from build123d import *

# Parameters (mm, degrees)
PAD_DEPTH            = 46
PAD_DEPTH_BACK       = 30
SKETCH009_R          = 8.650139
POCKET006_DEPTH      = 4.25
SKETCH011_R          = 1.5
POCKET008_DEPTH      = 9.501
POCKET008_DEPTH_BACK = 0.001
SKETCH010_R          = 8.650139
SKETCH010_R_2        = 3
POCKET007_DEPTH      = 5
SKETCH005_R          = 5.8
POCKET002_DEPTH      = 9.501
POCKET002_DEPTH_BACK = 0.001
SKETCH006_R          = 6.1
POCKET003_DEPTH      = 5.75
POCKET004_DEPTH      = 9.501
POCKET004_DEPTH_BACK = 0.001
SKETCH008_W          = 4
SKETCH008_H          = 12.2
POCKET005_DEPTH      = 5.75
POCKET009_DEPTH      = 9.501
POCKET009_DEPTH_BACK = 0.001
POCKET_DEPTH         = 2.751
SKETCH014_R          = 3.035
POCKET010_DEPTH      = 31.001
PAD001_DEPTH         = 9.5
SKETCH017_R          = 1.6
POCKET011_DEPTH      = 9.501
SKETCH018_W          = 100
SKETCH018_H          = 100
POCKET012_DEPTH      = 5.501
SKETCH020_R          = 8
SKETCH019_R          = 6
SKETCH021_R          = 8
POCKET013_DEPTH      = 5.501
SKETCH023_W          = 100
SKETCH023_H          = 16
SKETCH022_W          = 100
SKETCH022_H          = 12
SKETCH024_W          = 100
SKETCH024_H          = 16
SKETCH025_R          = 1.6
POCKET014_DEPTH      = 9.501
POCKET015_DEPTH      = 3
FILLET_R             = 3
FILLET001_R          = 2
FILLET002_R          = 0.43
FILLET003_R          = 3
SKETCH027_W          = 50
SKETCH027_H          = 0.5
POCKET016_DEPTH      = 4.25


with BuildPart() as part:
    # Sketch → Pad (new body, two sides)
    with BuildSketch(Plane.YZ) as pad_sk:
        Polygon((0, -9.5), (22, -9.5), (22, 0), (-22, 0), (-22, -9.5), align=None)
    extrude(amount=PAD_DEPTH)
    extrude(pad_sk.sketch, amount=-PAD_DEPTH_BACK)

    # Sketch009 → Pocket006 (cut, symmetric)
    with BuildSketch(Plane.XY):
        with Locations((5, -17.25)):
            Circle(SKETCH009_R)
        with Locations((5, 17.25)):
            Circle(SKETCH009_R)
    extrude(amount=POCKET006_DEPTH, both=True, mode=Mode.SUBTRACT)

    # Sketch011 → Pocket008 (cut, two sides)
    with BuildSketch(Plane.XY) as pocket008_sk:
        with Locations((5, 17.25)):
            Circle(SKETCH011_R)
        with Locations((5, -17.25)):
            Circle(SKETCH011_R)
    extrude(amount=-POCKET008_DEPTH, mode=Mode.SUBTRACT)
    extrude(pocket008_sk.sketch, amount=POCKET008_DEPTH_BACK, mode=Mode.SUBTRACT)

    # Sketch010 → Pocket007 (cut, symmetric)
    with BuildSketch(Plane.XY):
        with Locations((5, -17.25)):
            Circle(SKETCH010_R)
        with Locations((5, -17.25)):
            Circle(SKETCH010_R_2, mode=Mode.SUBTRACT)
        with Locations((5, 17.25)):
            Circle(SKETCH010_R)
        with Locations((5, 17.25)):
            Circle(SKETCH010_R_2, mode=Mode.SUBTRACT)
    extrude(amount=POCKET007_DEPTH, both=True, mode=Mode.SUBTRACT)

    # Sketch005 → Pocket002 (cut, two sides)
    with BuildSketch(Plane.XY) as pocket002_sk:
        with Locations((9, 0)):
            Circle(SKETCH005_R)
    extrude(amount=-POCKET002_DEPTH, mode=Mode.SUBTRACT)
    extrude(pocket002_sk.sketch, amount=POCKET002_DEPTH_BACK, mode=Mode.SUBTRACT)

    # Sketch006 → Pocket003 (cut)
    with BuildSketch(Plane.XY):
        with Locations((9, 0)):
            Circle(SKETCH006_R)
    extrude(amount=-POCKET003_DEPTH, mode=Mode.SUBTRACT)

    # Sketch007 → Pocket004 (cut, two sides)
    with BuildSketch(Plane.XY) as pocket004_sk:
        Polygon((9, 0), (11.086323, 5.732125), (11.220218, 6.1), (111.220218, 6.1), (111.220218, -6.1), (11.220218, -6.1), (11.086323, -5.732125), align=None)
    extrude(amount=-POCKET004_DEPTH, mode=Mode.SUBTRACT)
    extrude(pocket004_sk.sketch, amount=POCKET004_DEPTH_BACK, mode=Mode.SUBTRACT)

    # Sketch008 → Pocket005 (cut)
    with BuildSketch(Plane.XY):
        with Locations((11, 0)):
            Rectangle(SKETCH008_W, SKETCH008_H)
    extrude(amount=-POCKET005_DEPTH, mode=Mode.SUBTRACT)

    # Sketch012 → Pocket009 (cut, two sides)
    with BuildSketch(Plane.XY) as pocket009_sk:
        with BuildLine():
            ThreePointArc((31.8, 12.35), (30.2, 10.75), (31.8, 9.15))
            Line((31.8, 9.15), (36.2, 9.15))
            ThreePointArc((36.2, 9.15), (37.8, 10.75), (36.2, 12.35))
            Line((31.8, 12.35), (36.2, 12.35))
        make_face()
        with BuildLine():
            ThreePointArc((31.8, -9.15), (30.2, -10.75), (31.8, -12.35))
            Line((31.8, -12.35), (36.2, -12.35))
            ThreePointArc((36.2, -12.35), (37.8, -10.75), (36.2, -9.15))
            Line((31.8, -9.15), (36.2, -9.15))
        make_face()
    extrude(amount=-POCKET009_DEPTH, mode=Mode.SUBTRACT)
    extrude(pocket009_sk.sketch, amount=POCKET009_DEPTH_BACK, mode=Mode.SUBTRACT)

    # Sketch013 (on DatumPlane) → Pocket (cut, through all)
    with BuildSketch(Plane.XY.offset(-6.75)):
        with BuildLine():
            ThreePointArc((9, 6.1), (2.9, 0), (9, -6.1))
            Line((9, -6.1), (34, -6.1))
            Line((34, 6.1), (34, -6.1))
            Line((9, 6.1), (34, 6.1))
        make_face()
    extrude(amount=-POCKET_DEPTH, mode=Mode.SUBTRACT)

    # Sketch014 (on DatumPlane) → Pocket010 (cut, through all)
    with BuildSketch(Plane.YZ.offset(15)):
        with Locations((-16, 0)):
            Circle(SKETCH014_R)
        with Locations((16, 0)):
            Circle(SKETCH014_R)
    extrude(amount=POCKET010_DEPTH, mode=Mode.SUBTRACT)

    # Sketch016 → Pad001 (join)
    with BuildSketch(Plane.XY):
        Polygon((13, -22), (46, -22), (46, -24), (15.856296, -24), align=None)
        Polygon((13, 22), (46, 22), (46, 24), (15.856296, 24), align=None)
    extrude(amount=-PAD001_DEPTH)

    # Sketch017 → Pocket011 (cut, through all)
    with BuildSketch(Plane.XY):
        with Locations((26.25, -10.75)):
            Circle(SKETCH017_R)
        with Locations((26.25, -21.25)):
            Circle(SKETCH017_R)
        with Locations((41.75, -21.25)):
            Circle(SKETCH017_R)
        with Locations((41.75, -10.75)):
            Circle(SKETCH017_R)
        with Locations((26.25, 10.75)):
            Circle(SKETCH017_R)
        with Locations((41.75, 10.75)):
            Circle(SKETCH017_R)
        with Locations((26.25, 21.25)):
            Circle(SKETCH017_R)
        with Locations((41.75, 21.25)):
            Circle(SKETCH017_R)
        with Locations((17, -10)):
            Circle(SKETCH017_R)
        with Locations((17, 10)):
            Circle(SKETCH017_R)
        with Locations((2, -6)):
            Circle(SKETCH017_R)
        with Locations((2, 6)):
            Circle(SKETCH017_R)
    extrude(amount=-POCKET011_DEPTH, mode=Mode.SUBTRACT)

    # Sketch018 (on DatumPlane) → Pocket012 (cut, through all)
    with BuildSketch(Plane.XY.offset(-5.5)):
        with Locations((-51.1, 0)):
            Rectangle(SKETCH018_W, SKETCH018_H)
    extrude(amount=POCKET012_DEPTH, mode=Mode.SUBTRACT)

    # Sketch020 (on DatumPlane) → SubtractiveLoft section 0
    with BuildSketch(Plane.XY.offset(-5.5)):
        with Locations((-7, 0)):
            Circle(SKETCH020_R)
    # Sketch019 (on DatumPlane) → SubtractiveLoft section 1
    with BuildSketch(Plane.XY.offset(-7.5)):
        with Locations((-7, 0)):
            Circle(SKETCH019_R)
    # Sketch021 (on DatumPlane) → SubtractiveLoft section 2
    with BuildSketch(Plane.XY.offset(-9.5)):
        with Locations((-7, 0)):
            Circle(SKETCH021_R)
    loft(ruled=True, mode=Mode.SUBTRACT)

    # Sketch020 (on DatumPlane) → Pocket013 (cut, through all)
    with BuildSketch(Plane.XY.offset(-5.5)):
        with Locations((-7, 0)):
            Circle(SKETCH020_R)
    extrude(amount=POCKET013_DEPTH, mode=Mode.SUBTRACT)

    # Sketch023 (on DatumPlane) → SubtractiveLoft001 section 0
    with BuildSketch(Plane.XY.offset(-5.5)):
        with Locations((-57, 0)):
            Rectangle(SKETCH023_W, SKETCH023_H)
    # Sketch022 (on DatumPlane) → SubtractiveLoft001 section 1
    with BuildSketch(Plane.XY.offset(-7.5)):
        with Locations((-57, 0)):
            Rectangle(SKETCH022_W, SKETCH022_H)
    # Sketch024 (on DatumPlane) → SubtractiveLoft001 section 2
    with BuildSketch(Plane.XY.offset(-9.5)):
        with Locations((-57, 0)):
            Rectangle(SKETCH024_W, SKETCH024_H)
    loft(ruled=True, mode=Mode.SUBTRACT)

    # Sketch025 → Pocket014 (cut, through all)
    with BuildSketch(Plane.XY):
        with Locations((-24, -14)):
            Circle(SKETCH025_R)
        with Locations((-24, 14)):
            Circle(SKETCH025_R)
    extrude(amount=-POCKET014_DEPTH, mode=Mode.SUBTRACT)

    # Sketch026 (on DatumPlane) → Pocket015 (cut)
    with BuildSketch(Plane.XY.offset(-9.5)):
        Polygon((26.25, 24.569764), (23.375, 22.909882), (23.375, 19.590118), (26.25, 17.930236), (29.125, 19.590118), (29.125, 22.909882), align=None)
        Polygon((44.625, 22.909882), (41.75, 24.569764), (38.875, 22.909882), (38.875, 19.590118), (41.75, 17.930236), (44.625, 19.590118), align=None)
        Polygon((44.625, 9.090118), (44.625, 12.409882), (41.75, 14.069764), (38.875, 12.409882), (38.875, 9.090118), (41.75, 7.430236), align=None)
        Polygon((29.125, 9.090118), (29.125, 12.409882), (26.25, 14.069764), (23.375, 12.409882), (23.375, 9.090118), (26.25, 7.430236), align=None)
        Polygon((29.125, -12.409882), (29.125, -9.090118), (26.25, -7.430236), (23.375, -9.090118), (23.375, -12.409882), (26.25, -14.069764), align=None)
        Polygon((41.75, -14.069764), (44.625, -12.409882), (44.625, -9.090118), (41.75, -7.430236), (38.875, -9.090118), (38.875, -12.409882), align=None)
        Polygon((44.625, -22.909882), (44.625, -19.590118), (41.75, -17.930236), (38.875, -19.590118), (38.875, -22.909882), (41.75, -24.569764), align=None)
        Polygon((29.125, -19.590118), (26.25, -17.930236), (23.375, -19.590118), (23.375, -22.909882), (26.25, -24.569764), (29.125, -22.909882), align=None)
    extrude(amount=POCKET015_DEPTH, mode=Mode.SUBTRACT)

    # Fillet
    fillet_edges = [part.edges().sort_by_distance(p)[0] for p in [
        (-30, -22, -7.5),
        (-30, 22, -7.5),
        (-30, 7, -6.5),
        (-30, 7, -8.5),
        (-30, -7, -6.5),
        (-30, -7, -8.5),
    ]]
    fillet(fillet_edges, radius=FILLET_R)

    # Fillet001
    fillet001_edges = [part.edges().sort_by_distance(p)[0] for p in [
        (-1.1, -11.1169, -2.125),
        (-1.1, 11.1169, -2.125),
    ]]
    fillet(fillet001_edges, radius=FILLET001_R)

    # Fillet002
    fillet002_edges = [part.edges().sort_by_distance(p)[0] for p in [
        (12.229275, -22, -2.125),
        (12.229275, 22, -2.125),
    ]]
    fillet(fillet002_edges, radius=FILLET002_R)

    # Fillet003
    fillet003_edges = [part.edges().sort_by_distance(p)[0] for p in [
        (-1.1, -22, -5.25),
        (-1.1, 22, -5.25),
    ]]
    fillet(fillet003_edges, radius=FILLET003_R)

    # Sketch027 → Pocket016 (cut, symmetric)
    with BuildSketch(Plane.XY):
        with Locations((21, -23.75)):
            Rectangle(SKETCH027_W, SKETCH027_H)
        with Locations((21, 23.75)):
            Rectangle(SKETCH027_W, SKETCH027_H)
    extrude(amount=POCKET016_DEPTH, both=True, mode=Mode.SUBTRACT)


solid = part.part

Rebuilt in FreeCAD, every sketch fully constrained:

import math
import FreeCAD as App
import Part
import Sketcher
Q = App.Units.Quantity


def edges_at(feature, points):
    """Names of the edges that pass closest to the given points."""
    edges = feature.Shape.Edges
    near = lambda p: min(range(len(edges)), key=lambda i: edges[i].distToShape(Part.Vertex(*p))[0])
    return sorted({f"Edge{near(p) + 1}" for p in points})


def add_polygon(sketch, points):
    """Adds a closed chain of lines whose ends are joined by coincident constraints."""
    first, n = sketch.GeometryCount, len(points)
    for a, b in zip(points, points[1:] + points[:1]):
        sketch.addGeometry(Part.LineSegment(App.Vector(*a, 0), App.Vector(*b, 0)), False)
    for i in range(n):
        sketch.addConstraint(Sketcher.Constraint("Coincident", first + i, 2, first + (i + 1) % n, 1))

doc = App.newDocument("Part")
params = doc.addObject("Spreadsheet::Sheet", "Params")
for row, (alias, value) in enumerate([
    ("sketch1_width", "44 mm"),
    ("sketch1_height", "9.5 mm"),
    ("pad1_length", "46 mm"),
    ("pad1_length2", "30 mm"),
    ("pocket1_length", "8.5 mm"),
    ("sketch3_diameter", "3 mm"),
    ("sketch4_diameter", "6 mm"),
    ("pocket3_length", "10 mm"),
    ("sketch5_diameter", "11.6 mm"),
    ("sketch6_diameter", "12.2 mm"),
    ("pocket5_length", "5.75 mm"),
    ("sketch7_width", "100 mm"),
    ("sketch7_height", "12.2 mm"),
    ("sketch7_length", "6.1 mm"),
    ("sketch8_width", "4 mm"),
    ("sketch8_height", "12.2 mm"),
    ("pocket7_length", "5.75 mm"),
    ("sketch9_radius", "1.6 mm"),
    ("sketch9_width", "4.4 mm"),
    ("sketch10_radius", "6.1 mm"),
    ("sketch10_width", "25 mm"),
    ("sketch11_diameter", "6.07 mm"),
    ("sketch12_width", "33 mm"),
    ("sketch12_height", "2 mm"),
    ("pad2_length", "9.5 mm"),
    ("sketch13_diameter", "3.2 mm"),
    ("sketch14_width", "100 mm"),
    ("sketch15_diameter", "16 mm"),
    ("sketch16_diameter", "12 mm"),
    ("sketch17_diameter", "16 mm"),
    ("sketch18_diameter", "16 mm"),
    ("sketch19_width", "100 mm"),
    ("sketch19_height", "16 mm"),
    ("sketch20_width", "100 mm"),
    ("sketch20_height", "12 mm"),
    ("sketch21_width", "100 mm"),
    ("sketch21_height", "16 mm"),
    ("sketch22_diameter", "3.2 mm"),
    ("pocket15_length", "3 mm"),
    ("fillet_radius", "3 mm"),
    ("fillet2_radius", "2 mm"),
    ("fillet3_radius", "0.43 mm"),
    ("fillet4_radius", "3 mm"),
    ("sketch24_width", "50 mm"),
    ("sketch24_height", "0.5 mm"),
    ("pocket16_length", "8.5 mm"),
], start=1):
    params.set(f"A{row}", alias)
    params.set(f"B{row}", "=" + value)
    params.setAlias(f"B{row}", alias)

body = doc.addObject("PartDesign::Body", "Body")

sketch1 = body.newObject("Sketcher::SketchObject", "Sketch")
sketch1.AttachmentSupport = (doc.getObject("YZ_Plane"), [""])
sketch1.MapMode = "FlatFace"
add_polygon(sketch1, [(22, -9.5), (22, 0), (-22, 0), (-22, -9.5)])
sketch1.addConstraint([
    Sketcher.Constraint("Vertical", 0),
    Sketcher.Constraint("Horizontal", 1),
    Sketcher.Constraint("Vertical", 2),
    Sketcher.Constraint("Horizontal", 3),
    Sketcher.Constraint("Symmetric", 0, 2, 1, 2, -1, 1),
    Sketcher.Constraint("DistanceX", 1, 2, 1, 1, Q("44 mm")),
    Sketcher.Constraint("DistanceY", 0, 1, 0, 2, Q("9.5 mm")),
])
sketch1.setExpression("Constraints[9]", "Params.sketch1_width")
sketch1.setExpression("Constraints[10]", "Params.sketch1_height")
pad1 = body.newObject("PartDesign::Pad", "Pad")
pad1.Profile = sketch1
pad1.Type = "TwoLengths"
pad1.setExpression("Length", "Params.pad1_length")
pad1.setExpression("Length2", "Params.pad1_length2")

sketch2 = body.newObject("Sketcher::SketchObject", "Sketch001")
sketch2.AttachmentSupport = (doc.getObject("XY_Plane"), [""])
sketch2.MapMode = "FlatFace"
sketch2.addGeometry([
    Part.Circle(App.Vector(5, -17.25, 0), App.Vector(0, 0, 1), 8.650139),
    Part.Circle(App.Vector(5, 17.25, 0), App.Vector(0, 0, 1), 8.650139),
], False)
sketch2.addConstraint([
    Sketcher.Constraint("Equal", 0, 1),
    Sketcher.Constraint("Symmetric", 0, 3, 1, 3, -1),
    Sketcher.Constraint("DistanceX", -1, 1, 0, 3, Q("5 mm")),
    Sketcher.Constraint("DistanceY", 0, 3, 1, 3, Q("34.5 mm")),
    Sketcher.Constraint("Diameter", 0, Q("17.300278 mm")),
])
pocket1 = body.newObject("PartDesign::Pocket", "Pocket")
pocket1.Profile = sketch2
pocket1.setExpression("Length", "Params.pocket1_length")
pocket1.Midplane = True

sketch3 = body.newObject("Sketcher::SketchObject", "Sketch002")
sketch3.AttachmentSupport = (doc.getObject("XY_Plane"), [""])
sketch3.MapMode = "FlatFace"
sketch3.addGeometry([
    Part.Circle(App.Vector(5, 17.25, 0), App.Vector(0, 0, 1), 1.5),
    Part.Circle(App.Vector(5, -17.25, 0), App.Vector(0, 0, 1), 1.5),
], False)
sketch3.addConstraint([
    Sketcher.Constraint("Equal", 0, 1),
    Sketcher.Constraint("Symmetric", 0, 3, 1, 3, -1),
    Sketcher.Constraint("Diameter", 0, Q("3 mm")),
    Sketcher.Constraint("DistanceX", -1, 1, 0, 3, Q("5 mm")),
    Sketcher.Constraint("DistanceY", 1, 3, 0, 3, Q("34.5 mm")),
])
sketch3.setExpression("Constraints[2]", "Params.sketch3_diameter")
pocket2 = body.newObject("PartDesign::Pocket", "Pocket001")
pocket2.Profile = sketch3
pocket2.Type = "ThroughAll"
pocket2.Midplane = True

sketch4 = body.newObject("Sketcher::SketchObject", "Sketch003")
sketch4.AttachmentSupport = (doc.getObject("XY_Plane"), [""])
sketch4.MapMode = "FlatFace"
sketch4.addGeometry([
    Part.Circle(App.Vector(5, -17.25, 0), App.Vector(0, 0, 1), 8.650139),
    Part.Circle(App.Vector(5, -17.25, 0), App.Vector(0, 0, 1), 3),
    Part.Circle(App.Vector(5, 17.25, 0), App.Vector(0, 0, 1), 8.650139),
    Part.Circle(App.Vector(5, 17.25, 0), App.Vector(0, 0, 1), 3),
], False)
sketch4.addConstraint([
    Sketcher.Constraint("Coincident", 1, 3, 0, 3),
    Sketcher.Constraint("Coincident", 3, 3, 2, 3),
    Sketcher.Constraint("Equal", 0, 2),
    Sketcher.Constraint("Equal", 1, 3),
    Sketcher.Constraint("Symmetric", 0, 3, 2, 3, -1),
    Sketcher.Constraint("Diameter", 1, Q("6 mm")),
    Sketcher.Constraint("DistanceX", -1, 1, 0, 3, Q("5 mm")),
    Sketcher.Constraint("DistanceY", 0, 3, 2, 3, Q("34.5 mm")),
    Sketcher.Constraint("Diameter", 0, Q("17.300278 mm")),
])
sketch4.setExpression("Constraints[5]", "Params.sketch4_diameter")
pocket3 = body.newObject("PartDesign::Pocket", "Pocket002")
pocket3.Profile = sketch4
pocket3.setExpression("Length", "Params.pocket3_length")
pocket3.Midplane = True

sketch5 = body.newObject("Sketcher::SketchObject", "Sketch004")
sketch5.AttachmentSupport = (doc.getObject("XY_Plane"), [""])
sketch5.MapMode = "FlatFace"
sketch5.addGeometry(Part.Circle(App.Vector(9, 0, 0), App.Vector(0, 0, 1), 5.8), False)
sketch5.addConstraint([
    Sketcher.Constraint("PointOnObject", 0, 3, -1),
    Sketcher.Constraint("Diameter", 0, Q("11.6 mm")),
    Sketcher.Constraint("DistanceX", -1, 1, 0, 3, Q("9 mm")),
])
sketch5.setExpression("Constraints[1]", "Params.sketch5_diameter")
pocket4 = body.newObject("PartDesign::Pocket", "Pocket003")
pocket4.Profile = sketch5
pocket4.Type = "ThroughAll"
pocket4.Midplane = True

sketch6 = body.newObject("Sketcher::SketchObject", "Sketch005")
sketch6.AttachmentSupport = (doc.getObject("XY_Plane"), [""])
sketch6.MapMode = "FlatFace"
sketch6.addGeometry(Part.Circle(App.Vector(9, 0, 0), App.Vector(0, 0, 1), 6.1), False)
sketch6.addConstraint([
    Sketcher.Constraint("PointOnObject", 0, 3, -1),
    Sketcher.Constraint("Diameter", 0, Q("12.2 mm")),
    Sketcher.Constraint("DistanceX", -1, 1, 0, 3, Q("9 mm")),
])
sketch6.setExpression("Constraints[1]", "Params.sketch6_diameter")
pocket5 = body.newObject("PartDesign::Pocket", "Pocket004")
pocket5.Profile = sketch6
pocket5.setExpression("Length", "Params.pocket5_length")

sketch7 = body.newObject("Sketcher::SketchObject", "Sketch006")
sketch7.AttachmentSupport = (doc.getObject("XY_Plane"), [""])
sketch7.MapMode = "FlatFace"
add_polygon(sketch7, [(11.086323, 5.732125), (9, 0), (11.086323, -5.732125), (11.220218, -6.1), (111.220218, -6.1), (111.220218, 6.1), (11.220218, 6.1)])
sketch7.addConstraint([
    Sketcher.Constraint("Horizontal", 3),
    Sketcher.Constraint("Vertical", 4),
    Sketcher.Constraint("Horizontal", 5),
    Sketcher.Constraint("Symmetric", 2, 2, 5, 2, -1),
    Sketcher.Constraint("Symmetric", 1, 2, 6, 2, -1),
    Sketcher.Constraint("PointOnObject", 0, 2, -1),
    Sketcher.Constraint("Parallel", 1, 2),
    Sketcher.Constraint("DistanceX", 3, 1, 3, 2, Q("100 mm")),
    Sketcher.Constraint("Angle", 0, Q("-110.000001 deg")),
    Sketcher.Constraint("DistanceY", 4, 1, 4, 2, Q("12.2 mm")),
    Sketcher.Constraint("DistanceX", -1, 1, 0, 2, Q("9 mm")),
    Sketcher.Constraint("Distance", 0, Q("6.1 mm")),
])
sketch7.setExpression("Constraints[14]", "Params.sketch7_width")
sketch7.setExpression("Constraints[16]", "Params.sketch7_height")
sketch7.setExpression("Constraints[18]", "Params.sketch7_length")
pocket6 = body.newObject("PartDesign::Pocket", "Pocket005")
pocket6.Profile = sketch7
pocket6.Type = "ThroughAll"
pocket6.Midplane = True

sketch8 = body.newObject("Sketcher::SketchObject", "Sketch007")
sketch8.AttachmentSupport = (doc.getObject("XY_Plane"), [""])
sketch8.MapMode = "FlatFace"
add_polygon(sketch8, [(9, 6.1), (9, -6.1), (13, -6.1), (13, 6.1)])
sketch8.addConstraint([
    Sketcher.Constraint("Vertical", 0),
    Sketcher.Constraint("Horizontal", 1),
    Sketcher.Constraint("Vertical", 2),
    Sketcher.Constraint("Horizontal", 3),
    Sketcher.Constraint("DistanceX", 1, 1, 1, 2, Q("4 mm")),
    Sketcher.Constraint("DistanceY", 0, 2, 0, 1, Q("12.2 mm")),
    Sketcher.Constraint("DistanceX", -1, 1, 0, 2, Q("9 mm")),
    Sketcher.Constraint("DistanceY", 0, 2, -1, 1, Q("6.1 mm")),
])
sketch8.setExpression("Constraints[8]", "Params.sketch8_width")
sketch8.setExpression("Constraints[9]", "Params.sketch8_height")
pocket7 = body.newObject("PartDesign::Pocket", "Pocket006")
pocket7.Profile = sketch8
pocket7.setExpression("Length", "Params.pocket7_length")

sketch9 = body.newObject("Sketcher::SketchObject", "Sketch008")
sketch9.AttachmentSupport = (doc.getObject("XY_Plane"), [""])
sketch9.MapMode = "FlatFace"
sketch9.addGeometry([
    Part.ArcOfCircle(Part.Circle(App.Vector(31.8, 10.75, 0), App.Vector(0, 0, 1), 1.6), math.radians(90), math.radians(270)),
    Part.LineSegment(App.Vector(31.8, 9.15, 0), App.Vector(36.2, 9.15, 0)),
    Part.ArcOfCircle(Part.Circle(App.Vector(36.2, 10.75, 0), App.Vector(0, 0, 1), 1.6), math.radians(-90), math.radians(90)),
    Part.LineSegment(App.Vector(36.2, 12.35, 0), App.Vector(31.8, 12.35, 0)),
    Part.ArcOfCircle(Part.Circle(App.Vector(31.8, -10.75, 0), App.Vector(0, 0, 1), 1.6), math.radians(90), math.radians(270)),
    Part.LineSegment(App.Vector(31.8, -12.35, 0), App.Vector(36.2, -12.35, 0)),
    Part.ArcOfCircle(Part.Circle(App.Vector(36.2, -10.75, 0), App.Vector(0, 0, 1), 1.6), math.radians(-90), math.radians(90)),
    Part.LineSegment(App.Vector(36.2, -9.15, 0), App.Vector(31.8, -9.15, 0)),
], False)
sketch9.addConstraint([
    Sketcher.Constraint("Tangent", 0, 2, 1, 1),
    Sketcher.Constraint("Tangent", 1, 2, 2, 1),
    Sketcher.Constraint("Tangent", 2, 2, 3, 1),
    Sketcher.Constraint("Tangent", 3, 2, 0, 1),
    Sketcher.Constraint("Tangent", 4, 2, 5, 1),
    Sketcher.Constraint("Tangent", 5, 2, 6, 1),
    Sketcher.Constraint("Tangent", 6, 2, 7, 1),
    Sketcher.Constraint("Tangent", 7, 2, 4, 1),
    Sketcher.Constraint("Horizontal", 1),
    Sketcher.Constraint("Horizontal", 3),
    Sketcher.Constraint("Horizontal", 5),
    Sketcher.Constraint("Horizontal", 7),
    Sketcher.Constraint("Equal", 2, 4),
    Sketcher.Constraint("Symmetric", 0, 3, 4, 3, -1),
    Sketcher.Constraint("Vertical", 2, 3, 6, 3),
    Sketcher.Constraint("Radius", 0, Q("1.6 mm")),
    Sketcher.Constraint("DistanceX", 1, 1, 1, 2, Q("4.4 mm")),
    Sketcher.Constraint("DistanceX", -1, 1, 0, 3, Q("31.8 mm")),
    Sketcher.Constraint("DistanceY", 4, 3, 0, 3, Q("21.5 mm")),
])
sketch9.setExpression("Constraints[15]", "Params.sketch9_radius")
sketch9.setExpression("Constraints[16]", "Params.sketch9_width")
pocket8 = body.newObject("PartDesign::Pocket", "Pocket007")
pocket8.Profile = sketch9
pocket8.Type = "ThroughAll"
pocket8.Midplane = True

sketch10 = body.newObject("Sketcher::SketchObject", "Sketch009")
sketch10.AttachmentSupport = (doc.getObject("XY_Plane"), [""])
sketch10.MapMode = "FlatFace"
sketch10.AttachmentOffset = App.Placement(App.Vector(0, 0, -6.75), App.Rotation())
sketch10.addGeometry([
    Part.ArcOfCircle(Part.Circle(App.Vector(9, 0, 0), App.Vector(0, 0, 1), 6.1), math.radians(90), math.radians(270)),
    Part.LineSegment(App.Vector(9, -6.1, 0), App.Vector(34, -6.1, 0)),
    Part.LineSegment(App.Vector(34, -6.1, 0), App.Vector(34, 6.1, 0)),
    Part.LineSegment(App.Vector(34, 6.1, 0), App.Vector(9, 6.1, 0)),
], False)
sketch10.addConstraint([
    Sketcher.Constraint("Tangent", 0, 2, 1, 1),
    Sketcher.Constraint("Coincident", 1, 2, 2, 1),
    Sketcher.Constraint("Coincident", 2, 2, 3, 1),
    Sketcher.Constraint("Tangent", 3, 2, 0, 1),
    Sketcher.Constraint("Horizontal", 1),
    Sketcher.Constraint("Vertical", 2),
    Sketcher.Constraint("Horizontal", 3),
    Sketcher.Constraint("PointOnObject", 0, 3, -1),
    Sketcher.Constraint("Radius", 0, Q("6.1 mm")),
    Sketcher.Constraint("DistanceX", 1, 1, 1, 2, Q("25 mm")),
    Sketcher.Constraint("DistanceX", -1, 1, 0, 3, Q("9 mm")),
])
sketch10.setExpression("Constraints[8]", "Params.sketch10_radius")
sketch10.setExpression("Constraints[9]", "Params.sketch10_width")
pocket9 = body.newObject("PartDesign::Pocket", "Pocket008")
pocket9.Profile = sketch10
pocket9.Type = "ThroughAll"

sketch11 = body.newObject("Sketcher::SketchObject", "Sketch010")
sketch11.AttachmentSupport = (doc.getObject("YZ_Plane"), [""])
sketch11.MapMode = "FlatFace"
sketch11.AttachmentOffset = App.Placement(App.Vector(0, 0, 15), App.Rotation())
sketch11.addGeometry([
    Part.Circle(App.Vector(-16, 0, 0), App.Vector(0, 0, 1), 3.035),
    Part.Circle(App.Vector(16, 0, 0), App.Vector(0, 0, 1), 3.035),
], False)
sketch11.addConstraint([
    Sketcher.Constraint("Equal", 0, 1),
    Sketcher.Constraint("Symmetric", 0, 3, 1, 3, -1, 1),
    Sketcher.Constraint("PointOnObject", 0, 3, -1),
    Sketcher.Constraint("Diameter", 0, Q("6.07 mm")),
    Sketcher.Constraint("DistanceX", 0, 3, -1, 1, Q("16 mm")),
])
sketch11.setExpression("Constraints[3]", "Params.sketch11_diameter")
pocket10 = body.newObject("PartDesign::Pocket", "Pocket009")
pocket10.Profile = sketch11
pocket10.Type = "ThroughAll"
pocket10.Reversed = True

sketch12 = body.newObject("Sketcher::SketchObject", "Sketch011")
sketch12.AttachmentSupport = (doc.getObject("XY_Plane"), [""])
sketch12.MapMode = "FlatFace"
add_polygon(sketch12, [(46, -22), (13, -22), (15.856296, -24), (46, -24)])
add_polygon(sketch12, [(13, 22), (46, 22), (46, 24), (15.856296, 24)])
sketch12.addConstraint([
    Sketcher.Constraint("Horizontal", 0),
    Sketcher.Constraint("Horizontal", 2),
    Sketcher.Constraint("Vertical", 3),
    Sketcher.Constraint("Horizontal", 4),
    Sketcher.Constraint("Vertical", 5),
    Sketcher.Constraint("Horizontal", 6),
    Sketcher.Constraint("Symmetric", 3, 2, 4, 2, -1),
    Sketcher.Constraint("Symmetric", 1, 2, 6, 2, -1),
    Sketcher.Constraint("Vertical", 0, 2, 7, 2),
    Sketcher.Constraint("DistanceX", 0, 2, 0, 1, Q("33 mm")),
    Sketcher.Constraint("DistanceY", 3, 1, 3, 2, Q("2 mm")),
    Sketcher.Constraint("Angle", 1, Q("-35 deg")),
    Sketcher.Constraint("DistanceX", -1, 1, 0, 2, Q("13 mm")),
    Sketcher.Constraint("DistanceY", 0, 2, -1, 1, Q("22 mm")),
])
sketch12.setExpression("Constraints[17]", "Params.sketch12_width")
sketch12.setExpression("Constraints[18]", "Params.sketch12_height")
pad2 = body.newObject("PartDesign::Pad", "Pad001")
pad2.Profile = sketch12
pad2.setExpression("Length", "Params.pad2_length")
pad2.Reversed = True

sketch13 = body.newObject("Sketcher::SketchObject", "Sketch012")
sketch13.AttachmentSupport = (doc.getObject("XY_Plane"), [""])
sketch13.MapMode = "FlatFace"
sketch13.addGeometry([
    Part.Circle(App.Vector(26.25, -10.75, 0), App.Vector(0, 0, 1), 1.6),
    Part.Circle(App.Vector(26.25, -21.25, 0), App.Vector(0, 0, 1), 1.6),
    Part.Circle(App.Vector(41.75, -21.25, 0), App.Vector(0, 0, 1), 1.6),
    Part.Circle(App.Vector(41.75, -10.75, 0), App.Vector(0, 0, 1), 1.6),
    Part.Circle(App.Vector(26.25, 10.75, 0), App.Vector(0, 0, 1), 1.6),
    Part.Circle(App.Vector(41.75, 10.75, 0), App.Vector(0, 0, 1), 1.6),
    Part.Circle(App.Vector(26.25, 21.25, 0), App.Vector(0, 0, 1), 1.6),
    Part.Circle(App.Vector(41.75, 21.25, 0), App.Vector(0, 0, 1), 1.6),
    Part.Circle(App.Vector(17, -10, 0), App.Vector(0, 0, 1), 1.6),
    Part.Circle(App.Vector(17, 10, 0), App.Vector(0, 0, 1), 1.6),
    Part.Circle(App.Vector(2, -6, 0), App.Vector(0, 0, 1), 1.6),
    Part.Circle(App.Vector(2, 6, 0), App.Vector(0, 0, 1), 1.6),
], False)
sketch13.addConstraint([
    Sketcher.Constraint("Equal", 0, 1),
    Sketcher.Constraint("Equal", 1, 2),
    Sketcher.Constraint("Equal", 2, 3),
    Sketcher.Constraint("Equal", 3, 4),
    Sketcher.Constraint("Equal", 4, 5),
    Sketcher.Constraint("Equal", 5, 6),
    Sketcher.Constraint("Equal", 6, 7),
    Sketcher.Constraint("Equal", 7, 8),
    Sketcher.Constraint("Equal", 8, 9),
    Sketcher.Constraint("Equal", 9, 10),
    Sketcher.Constraint("Equal", 10, 11),
    Sketcher.Constraint("Symmetric", 0, 3, 4, 3, -1),
    Sketcher.Constraint("Symmetric", 3, 3, 5, 3, -1),
    Sketcher.Constraint("Symmetric", 1, 3, 6, 3, -1),
    Sketcher.Constraint("Symmetric", 2, 3, 7, 3, -1),
    Sketcher.Constraint("Symmetric", 8, 3, 9, 3, -1),
    Sketcher.Constraint("Symmetric", 10, 3, 11, 3, -1),
    Sketcher.Constraint("Horizontal", 1, 3, 2, 3),
    Sketcher.Constraint("Horizontal", 0, 3, 3, 3),
    Sketcher.Constraint("Vertical", 0, 3, 1, 3),
    Sketcher.Constraint("Vertical", 2, 3, 3, 3),
    Sketcher.Constraint("Diameter", 0, Q("3.2 mm")),
    Sketcher.Constraint("DistanceX", -1, 1, 8, 3, Q("17 mm")),
    Sketcher.Constraint("DistanceY", 8, 3, -1, 1, Q("10 mm")),
    Sketcher.Constraint("DistanceX", -1, 1, 10, 3, Q("2 mm")),
    Sketcher.Constraint("DistanceY", 10, 3, -1, 1, Q("6 mm")),
    Sketcher.Constraint("DistanceY", 1, 3, 4, 3, Q("32 mm")),
    Sketcher.Constraint("DistanceY", 1, 3, 0, 3, Q("10.5 mm")),
    Sketcher.Constraint("DistanceX", 1, 3, 2, 3, Q("15.5 mm")),
    Sketcher.Constraint("DistanceX", -1, 1, 0, 3, Q("26.25 mm")),
])
sketch13.setExpression("Constraints[21]", "Params.sketch13_diameter")
pocket11 = body.newObject("PartDesign::Pocket", "Pocket010")
pocket11.Profile = sketch13
pocket11.Type = "ThroughAll"

sketch14 = body.newObject("Sketcher::SketchObject", "Sketch013")
sketch14.AttachmentSupport = (doc.getObject("XY_Plane"), [""])
sketch14.MapMode = "FlatFace"
sketch14.AttachmentOffset = App.Placement(App.Vector(0, 0, -5.5), App.Rotation())
add_polygon(sketch14, [(-101.1, 50), (-101.1, -50), (-1.1, -50), (-1.1, 50)])
sketch14.addConstraint([
    Sketcher.Constraint("Vertical", 0),
    Sketcher.Constraint("Horizontal", 1),
    Sketcher.Constraint("Vertical", 2),
    Sketcher.Constraint("Horizontal", 3),
    Sketcher.Constraint("Equal", 3, 0),
    Sketcher.Constraint("DistanceX", 1, 1, 1, 2, Q("100 mm")),
    Sketcher.Constraint("DistanceY", 0, 2, -1, 1, Q("50 mm")),
    Sketcher.Constraint("DistanceX", 0, 2, -1, 1, Q("101.1 mm")),
])
sketch14.setExpression("Constraints[9]", "Params.sketch14_width")
pocket12 = body.newObject("PartDesign::Pocket", "Pocket011")
pocket12.Profile = sketch14
pocket12.Type = "ThroughAll"
pocket12.Reversed = True

sketch15 = body.newObject("Sketcher::SketchObject", "Sketch014")
sketch15.AttachmentSupport = (doc.getObject("XY_Plane"), [""])
sketch15.MapMode = "FlatFace"
sketch15.AttachmentOffset = App.Placement(App.Vector(0, 0, -5.5), App.Rotation())
sketch15.addGeometry(Part.Circle(App.Vector(-7, 0, 0), App.Vector(0, 0, 1), 8), False)
sketch15.addConstraint([
    Sketcher.Constraint("PointOnObject", 0, 3, -1),
    Sketcher.Constraint("Diameter", 0, Q("16 mm")),
    Sketcher.Constraint("DistanceX", 0, 3, -1, 1, Q("7 mm")),
])
sketch15.setExpression("Constraints[1]", "Params.sketch15_diameter")

sketch16 = body.newObject("Sketcher::SketchObject", "Sketch015")
sketch16.AttachmentSupport = (doc.getObject("XY_Plane"), [""])
sketch16.MapMode = "FlatFace"
sketch16.AttachmentOffset = App.Placement(App.Vector(0, 0, -7.5), App.Rotation())
sketch16.addGeometry(Part.Circle(App.Vector(-7, 0, 0), App.Vector(0, 0, 1), 6), False)
sketch16.addConstraint([
    Sketcher.Constraint("PointOnObject", 0, 3, -1),
    Sketcher.Constraint("Diameter", 0, Q("12 mm")),
    Sketcher.Constraint("DistanceX", 0, 3, -1, 1, Q("7 mm")),
])
sketch16.setExpression("Constraints[1]", "Params.sketch16_diameter")

sketch17 = body.newObject("Sketcher::SketchObject", "Sketch016")
sketch17.AttachmentSupport = (doc.getObject("XY_Plane"), [""])
sketch17.MapMode = "FlatFace"
sketch17.AttachmentOffset = App.Placement(App.Vector(0, 0, -9.5), App.Rotation())
sketch17.addGeometry(Part.Circle(App.Vector(-7, 0, 0), App.Vector(0, 0, 1), 8), False)
sketch17.addConstraint([
    Sketcher.Constraint("PointOnObject", 0, 3, -1),
    Sketcher.Constraint("Diameter", 0, Q("16 mm")),
    Sketcher.Constraint("DistanceX", 0, 3, -1, 1, Q("7 mm")),
])
sketch17.setExpression("Constraints[1]", "Params.sketch17_diameter")

subtractiveloft = body.newObject("PartDesign::SubtractiveLoft", "SubtractiveLoft")
subtractiveloft.Profile = sketch15
subtractiveloft.Sections = [sketch16, sketch17]
subtractiveloft.Ruled = True

sketch18 = body.newObject("Sketcher::SketchObject", "Sketch017")
sketch18.AttachmentSupport = (doc.getObject("XY_Plane"), [""])
sketch18.MapMode = "FlatFace"
sketch18.AttachmentOffset = App.Placement(App.Vector(0, 0, -5.5), App.Rotation())
sketch18.addGeometry(Part.Circle(App.Vector(-7, 0, 0), App.Vector(0, 0, 1), 8), False)
sketch18.addConstraint([
    Sketcher.Constraint("PointOnObject", 0, 3, -1),
    Sketcher.Constraint("Diameter", 0, Q("16 mm")),
    Sketcher.Constraint("DistanceX", 0, 3, -1, 1, Q("7 mm")),
])
sketch18.setExpression("Constraints[1]", "Params.sketch18_diameter")
pocket13 = body.newObject("PartDesign::Pocket", "Pocket012")
pocket13.Profile = sketch18
pocket13.Type = "ThroughAll"
pocket13.Reversed = True

sketch19 = body.newObject("Sketcher::SketchObject", "Sketch018")
sketch19.AttachmentSupport = (doc.getObject("XY_Plane"), [""])
sketch19.MapMode = "FlatFace"
sketch19.AttachmentOffset = App.Placement(App.Vector(0, 0, -5.5), App.Rotation())
add_polygon(sketch19, [(-107, 8), (-107, -8), (-7, -8), (-7, 8)])
sketch19.addConstraint([
    Sketcher.Constraint("Vertical", 0),
    Sketcher.Constraint("Horizontal", 1),
    Sketcher.Constraint("Vertical", 2),
    Sketcher.Constraint("Horizontal", 3),
    Sketcher.Constraint("DistanceX", 1, 1, 1, 2, Q("100 mm")),
    Sketcher.Constraint("DistanceY", 0, 2, 0, 1, Q("16 mm")),
    Sketcher.Constraint("DistanceX", 0, 2, -1, 1, Q("107 mm")),
    Sketcher.Constraint("DistanceY", 0, 2, -1, 1, Q("8 mm")),
])
sketch19.setExpression("Constraints[8]", "Params.sketch19_width")
sketch19.setExpression("Constraints[9]", "Params.sketch19_height")

sketch20 = body.newObject("Sketcher::SketchObject", "Sketch019")
sketch20.AttachmentSupport = (doc.getObject("XY_Plane"), [""])
sketch20.MapMode = "FlatFace"
sketch20.AttachmentOffset = App.Placement(App.Vector(0, 0, -7.5), App.Rotation())
add_polygon(sketch20, [(-107, 6), (-107, -6), (-7, -6), (-7, 6)])
sketch20.addConstraint([
    Sketcher.Constraint("Vertical", 0),
    Sketcher.Constraint("Horizontal", 1),
    Sketcher.Constraint("Vertical", 2),
    Sketcher.Constraint("Horizontal", 3),
    Sketcher.Constraint("DistanceX", 1, 1, 1, 2, Q("100 mm")),
    Sketcher.Constraint("DistanceY", 0, 2, 0, 1, Q("12 mm")),
    Sketcher.Constraint("DistanceX", 0, 2, -1, 1, Q("107 mm")),
    Sketcher.Constraint("DistanceY", 0, 2, -1, 1, Q("6 mm")),
])
sketch20.setExpression("Constraints[8]", "Params.sketch20_width")
sketch20.setExpression("Constraints[9]", "Params.sketch20_height")

sketch21 = body.newObject("Sketcher::SketchObject", "Sketch020")
sketch21.AttachmentSupport = (doc.getObject("XY_Plane"), [""])
sketch21.MapMode = "FlatFace"
sketch21.AttachmentOffset = App.Placement(App.Vector(0, 0, -9.5), App.Rotation())
add_polygon(sketch21, [(-107, 8), (-107, -8), (-7, -8), (-7, 8)])
sketch21.addConstraint([
    Sketcher.Constraint("Vertical", 0),
    Sketcher.Constraint("Horizontal", 1),
    Sketcher.Constraint("Vertical", 2),
    Sketcher.Constraint("Horizontal", 3),
    Sketcher.Constraint("DistanceX", 1, 1, 1, 2, Q("100 mm")),
    Sketcher.Constraint("DistanceY", 0, 2, 0, 1, Q("16 mm")),
    Sketcher.Constraint("DistanceX", 0, 2, -1, 1, Q("107 mm")),
    Sketcher.Constraint("DistanceY", 0, 2, -1, 1, Q("8 mm")),
])
sketch21.setExpression("Constraints[8]", "Params.sketch21_width")
sketch21.setExpression("Constraints[9]", "Params.sketch21_height")

subtractiveloft2 = body.newObject("PartDesign::SubtractiveLoft", "SubtractiveLoft001")
subtractiveloft2.Profile = sketch19
subtractiveloft2.Sections = [sketch20, sketch21]
subtractiveloft2.Ruled = True

sketch22 = body.newObject("Sketcher::SketchObject", "Sketch021")
sketch22.AttachmentSupport = (doc.getObject("XY_Plane"), [""])
sketch22.MapMode = "FlatFace"
sketch22.addGeometry([
    Part.Circle(App.Vector(-24, -14, 0), App.Vector(0, 0, 1), 1.6),
    Part.Circle(App.Vector(-24, 14, 0), App.Vector(0, 0, 1), 1.6),
], False)
sketch22.addConstraint([
    Sketcher.Constraint("Equal", 0, 1),
    Sketcher.Constraint("Symmetric", 0, 3, 1, 3, -1),
    Sketcher.Constraint("Diameter", 0, Q("3.2 mm")),
    Sketcher.Constraint("DistanceX", 0, 3, -1, 1, Q("24 mm")),
    Sketcher.Constraint("DistanceY", 0, 3, -1, 1, Q("14 mm")),
])
sketch22.setExpression("Constraints[2]", "Params.sketch22_diameter")
pocket14 = body.newObject("PartDesign::Pocket", "Pocket013")
pocket14.Profile = sketch22
pocket14.Type = "ThroughAll"

sketch23 = body.newObject("Sketcher::SketchObject", "Sketch022")
sketch23.AttachmentSupport = (doc.getObject("XY_Plane"), [""])
sketch23.MapMode = "FlatFace"
sketch23.AttachmentOffset = App.Placement(App.Vector(0, 0, -9.5), App.Rotation())
add_polygon(sketch23, [(26.25, 24.569764), (23.375, 22.909882), (23.375, 19.590118), (26.25, 17.930236), (29.125, 19.590118), (29.125, 22.909882)])
add_polygon(sketch23, [(44.625, 22.909882), (41.75, 24.569764), (38.875, 22.909882), (38.875, 19.590118), (41.75, 17.930236), (44.625, 19.590118)])
add_polygon(sketch23, [(44.625, 9.090118), (44.625, 12.409882), (41.75, 14.069764), (38.875, 12.409882), (38.875, 9.090118), (41.75, 7.430236)])
add_polygon(sketch23, [(29.125, 9.090118), (29.125, 12.409882), (26.25, 14.069764), (23.375, 12.409882), (23.375, 9.090118), (26.25, 7.430236)])
add_polygon(sketch23, [(29.125, -12.409882), (29.125, -9.090118), (26.25, -7.430236), (23.375, -9.090118), (23.375, -12.409882), (26.25, -14.069764)])
add_polygon(sketch23, [(41.75, -14.069764), (44.625, -12.409882), (44.625, -9.090118), (41.75, -7.430236), (38.875, -9.090118), (38.875, -12.409882)])
add_polygon(sketch23, [(44.625, -22.909882), (44.625, -19.590118), (41.75, -17.930236), (38.875, -19.590118), (38.875, -22.909882), (41.75, -24.569764)])
add_polygon(sketch23, [(29.125, -19.590118), (26.25, -17.930236), (23.375, -19.590118), (23.375, -22.909882), (26.25, -24.569764), (29.125, -22.909882)])
sketch23.addConstraint([
    Sketcher.Constraint("Vertical", 1),
    Sketcher.Constraint("Vertical", 4),
    Sketcher.Constraint("Vertical", 8),
    Sketcher.Constraint("Vertical", 11),
    Sketcher.Constraint("Vertical", 12),
    Sketcher.Constraint("Vertical", 15),
    Sketcher.Constraint("Vertical", 18),
    Sketcher.Constraint("Vertical", 21),
    Sketcher.Constraint("Vertical", 24),
    Sketcher.Constraint("Vertical", 27),
    Sketcher.Constraint("Vertical", 31),
    Sketcher.Constraint("Vertical", 34),
    Sketcher.Constraint("Vertical", 36),
    Sketcher.Constraint("Vertical", 39),
    Sketcher.Constraint("Vertical", 44),
    Sketcher.Constraint("Vertical", 47),
    Sketcher.Constraint("Symmetric", 23, 2, 24, 2, -1),
    Sketcher.Constraint("Symmetric", 22, 2, 25, 2, -1),
    Sketcher.Constraint("Symmetric", 21, 2, 26, 2, -1),
    Sketcher.Constraint("Symmetric", 19, 2, 28, 2, -1),
    Sketcher.Constraint("Symmetric", 12, 2, 30, 2, -1),
    Sketcher.Constraint("Symmetric", 16, 2, 32, 2, -1),
    Sketcher.Constraint("Symmetric", 15, 2, 33, 2, -1),
    Sketcher.Constraint("Symmetric", 13, 2, 35, 2, -1),
    Sketcher.Constraint("Symmetric", 10, 2, 36, 2, -1),
    Sketcher.Constraint("Symmetric", 9, 2, 37, 2, -1),
    Sketcher.Constraint("Symmetric", 8, 2, 38, 2, -1),
    Sketcher.Constraint("Symmetric", 6, 2, 40, 2, -1),
    Sketcher.Constraint("Symmetric", 2, 2, 42, 2, -1),
    Sketcher.Constraint("Symmetric", 1, 2, 43, 2, -1),
    Sketcher.Constraint("Symmetric", 5, 2, 45, 2, -1),
    Sketcher.Constraint("Symmetric", 4, 2, 46, 2, -1),
    Sketcher.Constraint("Parallel", 0, 3),
    Sketcher.Constraint("Parallel", 2, 5),
    Sketcher.Constraint("Parallel", 5, 6),
    Sketcher.Constraint("Parallel", 3, 7),
    Sketcher.Constraint("Parallel", 6, 9),
    Sketcher.Constraint("Parallel", 7, 10),
    Sketcher.Constraint("Parallel", 9, 13),
    Sketcher.Constraint("Parallel", 10, 14),
    Sketcher.Constraint("Parallel", 13, 16),
    Sketcher.Constraint("Parallel", 14, 17),
    Sketcher.Constraint("Parallel", 16, 19),
    Sketcher.Constraint("Parallel", 17, 20),
    Sketcher.Constraint("Parallel", 19, 22),
    Sketcher.Constraint("Parallel", 20, 23),
    Sketcher.Constraint("Parallel", 22, 25),
    Sketcher.Constraint("Parallel", 25, 28),
    Sketcher.Constraint("Parallel", 26, 29),
    Sketcher.Constraint("Parallel", 28, 32),
    Sketcher.Constraint("Parallel", 32, 35),
    Sketcher.Constraint("Parallel", 37, 40),
    Sketcher.Constraint("Parallel", 38, 41),
    Sketcher.Constraint("Parallel", 40, 42),
    Sketcher.Constraint("Parallel", 42, 45),
    Sketcher.Constraint("Horizontal", 1, 2, 3, 2),
    Sketcher.Constraint("Horizontal", 0, 2, 4, 2),
    Sketcher.Constraint("Horizontal", 5, 2, 6, 2),
    Sketcher.Constraint("Horizontal", 4, 2, 7, 2),
    Sketcher.Constraint("Horizontal", 3, 2, 8, 2),
    Sketcher.Constraint("Horizontal", 2, 2, 9, 2),
    Sketcher.Constraint("Horizontal", 8, 2, 10, 2),
    Sketcher.Constraint("Horizontal", 12, 2, 14, 2),
    Sketcher.Constraint("Horizontal", 15, 2, 17, 2),
    Sketcher.Constraint("Horizontal", 14, 2, 18, 2),
    Sketcher.Constraint("Horizontal", 13, 2, 19, 2),
    Sketcher.Constraint("Horizontal", 18, 2, 20, 2),
    Sketcher.Constraint("Horizontal", 17, 2, 21, 2),
    Sketcher.Constraint("Horizontal", 16, 2, 22, 2),
    Sketcher.Constraint("Vertical", 11, 2, 12, 2),
    Sketcher.Constraint("Vertical", 9, 2, 13, 2),
    Sketcher.Constraint("Vertical", 4, 2, 18, 2),
    Sketcher.Constraint("Equal", 11, 12),
    Sketcher.Constraint("Angle", 0, Q("-150 deg")),
    Sketcher.Constraint("DistanceX", 5, 2, 6, 2, Q("15.5 mm")),
    Sketcher.Constraint("DistanceY", 12, 2, 11, 2, Q("10.5 mm")),
    Sketcher.Constraint("DistanceY", 27, 2, 21, 2, Q("21.5 mm")),
    Sketcher.Constraint("DistanceX", -1, 1, 2, 2, Q("26.25 mm")),
    Sketcher.Constraint("DistanceX", 1, 2, 3, 2, Q("5.75 mm")),
    Sketcher.Constraint("DistanceY", 1, 2, 1, 1, Q("3.319764 mm")),
])
pocket15 = body.newObject("PartDesign::Pocket", "Pocket014")
pocket15.Profile = sketch23
pocket15.setExpression("Length", "Params.pocket15_length")
pocket15.Reversed = True
doc.recompute()

fillet = body.newObject("PartDesign::Fillet", "Fillet")
fillet.Base = (pocket15, edges_at(pocket15, [
    (-30, -22, -7.5),
    (-30, 22, -7.5),
    (-30, 7, -6.5),
    (-30, 7, -8.5),
    (-30, -7, -6.5),
    (-30, -7, -8.5),
]))
fillet.setExpression("Radius", "Params.fillet_radius")
doc.recompute()

fillet2 = body.newObject("PartDesign::Fillet", "Fillet001")
fillet2.Base = (fillet, edges_at(fillet, [(-1.1, -11.117, -2.5), (-1.1, 11.117, -2.5)]))
fillet2.setExpression("Radius", "Params.fillet2_radius")
doc.recompute()

fillet3 = body.newObject("PartDesign::Fillet", "Fillet002")
fillet3.Base = (fillet2, edges_at(fillet2, [(12.229, -22, -2.5), (12.229, 22, -2.5)]))
fillet3.setExpression("Radius", "Params.fillet3_radius")
doc.recompute()

fillet4 = body.newObject("PartDesign::Fillet", "Fillet003")
fillet4.Base = (fillet3, edges_at(fillet3, [(-1.1, -22, -5.25), (-1.1, 22, -5.25)]))
fillet4.setExpression("Radius", "Params.fillet4_radius")

sketch24 = body.newObject("Sketcher::SketchObject", "Sketch023")
sketch24.AttachmentSupport = (doc.getObject("XY_Plane"), [""])
sketch24.MapMode = "FlatFace"
add_polygon(sketch24, [(-4, -23.5), (-4, -24), (46, -24), (46, -23.5)])
add_polygon(sketch24, [(-4, 24), (-4, 23.5), (46, 23.5), (46, 24)])
sketch24.addConstraint([
    Sketcher.Constraint("Vertical", 0),
    Sketcher.Constraint("Horizontal", 1),
    Sketcher.Constraint("Vertical", 2),
    Sketcher.Constraint("Horizontal", 3),
    Sketcher.Constraint("Vertical", 4),
    Sketcher.Constraint("Horizontal", 5),
    Sketcher.Constraint("Vertical", 6),
    Sketcher.Constraint("Horizontal", 7),
    Sketcher.Constraint("Symmetric", 3, 2, 4, 2, -1),
    Sketcher.Constraint("Symmetric", 1, 2, 6, 2, -1),
    Sketcher.Constraint("DistanceX", 1, 1, 1, 2, Q("50 mm")),
    Sketcher.Constraint("DistanceY", 0, 2, 0, 1, Q("0.5 mm")),
    Sketcher.Constraint("DistanceX", 0, 2, -1, 1, Q("4 mm")),
    Sketcher.Constraint("DistanceY", 0, 2, -1, 1, Q("24 mm")),
])
sketch24.setExpression("Constraints[18]", "Params.sketch24_width")
sketch24.setExpression("Constraints[19]", "Params.sketch24_height")
pocket16 = body.newObject("PartDesign::Pocket", "Pocket015")
pocket16.Profile = sketch24
pocket16.setExpression("Length", "Params.pocket16_length")
pocket16.Midplane = True

doc.recompute()
